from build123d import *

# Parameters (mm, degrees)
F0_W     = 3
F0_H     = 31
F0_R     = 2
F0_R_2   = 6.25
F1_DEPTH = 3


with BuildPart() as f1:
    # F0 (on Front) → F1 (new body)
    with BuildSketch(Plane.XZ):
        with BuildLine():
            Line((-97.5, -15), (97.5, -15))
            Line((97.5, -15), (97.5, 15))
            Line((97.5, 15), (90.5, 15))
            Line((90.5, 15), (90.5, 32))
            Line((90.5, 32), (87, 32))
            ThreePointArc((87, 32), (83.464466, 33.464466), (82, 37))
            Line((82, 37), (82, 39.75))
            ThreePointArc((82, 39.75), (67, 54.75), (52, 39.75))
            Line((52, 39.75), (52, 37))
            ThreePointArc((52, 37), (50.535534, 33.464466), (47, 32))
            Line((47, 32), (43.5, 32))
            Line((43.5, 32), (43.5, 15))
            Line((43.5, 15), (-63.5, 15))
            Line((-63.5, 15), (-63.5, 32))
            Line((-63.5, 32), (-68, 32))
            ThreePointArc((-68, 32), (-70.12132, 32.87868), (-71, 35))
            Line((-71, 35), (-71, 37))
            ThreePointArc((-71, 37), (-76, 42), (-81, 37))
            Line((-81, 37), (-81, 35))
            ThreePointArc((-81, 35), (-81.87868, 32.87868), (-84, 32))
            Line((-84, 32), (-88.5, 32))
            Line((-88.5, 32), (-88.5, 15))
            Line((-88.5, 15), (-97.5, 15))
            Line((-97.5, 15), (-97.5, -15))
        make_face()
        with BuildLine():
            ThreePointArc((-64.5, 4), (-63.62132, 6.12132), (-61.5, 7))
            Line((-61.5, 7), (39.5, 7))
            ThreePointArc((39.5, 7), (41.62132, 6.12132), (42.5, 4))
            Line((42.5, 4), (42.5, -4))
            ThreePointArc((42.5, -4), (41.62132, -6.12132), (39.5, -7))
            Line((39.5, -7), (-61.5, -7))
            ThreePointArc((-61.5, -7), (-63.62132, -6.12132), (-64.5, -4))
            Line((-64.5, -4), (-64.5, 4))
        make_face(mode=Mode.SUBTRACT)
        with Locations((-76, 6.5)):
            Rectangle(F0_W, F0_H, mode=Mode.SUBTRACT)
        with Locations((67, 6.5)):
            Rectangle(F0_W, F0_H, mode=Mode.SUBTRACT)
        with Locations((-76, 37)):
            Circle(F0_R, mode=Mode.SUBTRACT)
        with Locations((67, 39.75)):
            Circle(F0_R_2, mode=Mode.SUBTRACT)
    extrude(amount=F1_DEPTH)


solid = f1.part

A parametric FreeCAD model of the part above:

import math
import FreeCAD as App
import Part
import Sketcher
Q = App.Units.Quantity

doc = App.newDocument("Part")
body = doc.addObject("PartDesign::Body", "Body")

sketch1 = body.newObject("Sketcher::SketchObject", "Sketch")
sketch1.AttachmentSupport = (doc.getObject("XZ_Plane"), [""])
sketch1.MapMode = "FlatFace"
sketch1.addGeometry(Part.LineSegment(App.Vector(-97.5, -15, 0), App.Vector(97.5, -15, 0)), False)
sketch1.addGeometry(Part.LineSegment(App.Vector(97.5, -15, 0), App.Vector(97.5, 15, 0)), False)
sketch1.addGeometry(Part.LineSegment(App.Vector(97.5, 15, 0), App.Vector(90.5, 15, 0)), False)
sketch1.addGeometry(Part.LineSegment(App.Vector(90.5, 15, 0), App.Vector(90.5, 32, 0)), False)
sketch1.addGeometry(Part.LineSegment(App.Vector(90.5, 32, 0), App.Vector(87, 32, 0)), False)
sketch1.addGeometry(Part.ArcOfCircle(Part.Circle(App.Vector(87, 37, 0), App.Vector(0, 0, 1), 5), math.radians(180), math.radians(270)), False)
sketch1.addGeometry(Part.LineSegment(App.Vector(82, 37, 0), App.Vector(82, 39.8, 0)), False)
sketch1.addGeometry(Part.ArcOfCircle(Part.Circle(App.Vector(67, 39.8, 0), App.Vector(0, 0, 1), 15), math.radians(0), math.radians(180)), False)
sketch1.addGeometry(Part.LineSegment(App.Vector(52, 39.8, 0), App.Vector(52, 37, 0)), False)
sketch1.addGeometry(Part.ArcOfCircle(Part.Circle(App.Vector(47, 37, 0), App.Vector(0, 0, 1), 5), math.radians(-90), math.radians(0)), False)
sketch1.addGeometry(Part.LineSegment(App.Vector(47, 32, 0), App.Vector(43.5, 32, 0)), False)
sketch1.addGeometry(Part.LineSegment(App.Vector(43.5, 32, 0), App.Vector(43.5, 15, 0)), False)
sketch1.addGeometry(Part.LineSegment(App.Vector(43.5, 15, 0), App.Vector(-63.5, 15, 0)), False)
sketch1.addGeometry(Part.LineSegment(App.Vector(-63.5, 15, 0), App.Vector(-63.5, 32, 0)), False)
sketch1.addGeometry(Part.LineSegment(App.Vector(-63.5, 32, 0), App.Vector(-68, 32, 0)), False)
sketch1.addGeometry(Part.ArcOfCircle(Part.Circle(App.Vector(-68, 35, 0), App.Vector(0, 0, 1), 3), math.radians(-180), math.radians(-90)), False)
sketch1.addGeometry(Part.LineSegment(App.Vector(-71, 35, 0), App.Vector(-71, 37, 0)), False)
sketch1.addGeometry(Part.ArcOfCircle(Part.Circle(App.Vector(-76, 37, 0), App.Vector(0, 0, 1), 5), math.radians(0), math.radians(180)), False)
sketch1.addGeometry(Part.LineSegment(App.Vector(-81, 37, 0), App.Vector(-81, 35, 0)), False)
sketch1.addGeometry(Part.ArcOfCircle(Part.Circle(App.Vector(-84, 35, 0), App.Vector(0, 0, 1), 3), math.radians(-90), math.radians(0)), False)
sketch1.addGeometry(Part.LineSegment(App.Vector(-84, 32, 0), App.Vector(-88.5, 32, 0)), False)
sketch1.addGeometry(Part.LineSegment(App.Vector(-88.5, 32, 0), App.Vector(-88.5, 15, 0)), False)
sketch1.addGeometry(Part.LineSegment(App.Vector(-88.5, 15, 0), App.Vector(-97.5, 15, 0)), False)
sketch1.addGeometry(Part.LineSegment(App.Vector(-97.5, 15, 0), App.Vector(-97.5, -15, 0)), False)
sketch1.addGeometry(Part.LineSegment(App.Vector(-64.5, -4, 0), App.Vector(-64.5, 4, 0)), False)
sketch1.addGeometry(Part.ArcOfCircle(Part.Circle(App.Vector(-61.5, 4, 0), App.Vector(0, 0, 1), 3), math.radians(90), math.radians(180)), False)
sketch1.addGeometry(Part.LineSegment(App.Vector(-61.5, 7, 0), App.Vector(39.5, 7, 0)), False)
sketch1.addGeometry(Part.ArcOfCircle(Part.Circle(App.Vector(39.5, 4, 0), App.Vector(0, 0, 1), 3), math.radians(0), math.radians(90)), False)
sketch1.addGeometry(Part.LineSegment(App.Vector(42.5, 4, 0), App.Vector(42.5, -4, 0)), False)
sketch1.addGeometry(Part.ArcOfCircle(Part.Circle(App.Vector(39.5, -4, 0), App.Vector(0, 0, 1), 3), math.radians(-90), math.radians(0)), False)
sketch1.addGeometry(Part.LineSegment(App.Vector(39.5, -7, 0), App.Vector(-61.5, -7, 0)), False)
sketch1.addGeometry(Part.ArcOfCircle(Part.Circle(App.Vector(-61.5, -4, 0), App.Vector(0, 0, 1), 3), math.radians(-180), math.radians(-90)), False)
sketch1.addGeometry(Part.LineSegment(App.Vector(-74.5, -9, 0), App.Vector(-77.5, -9, 0)), False)
sketch1.addGeometry(Part.LineSegment(App.Vector(-77.5, -9, 0), App.Vector(-77.5, 22, 0)), False)
sketch1.addGeometry(Part.LineSegment(App.Vector(-77.5, 22, 0), App.Vector(-74.5, 22, 0)), False)
sketch1.addGeometry(Part.LineSegment(App.Vector(-74.5, 22, 0), App.Vector(-74.5, -9, 0)), False)
sketch1.addGeometry(Part.LineSegment(App.Vector(68.5, -9, 0), App.Vector(65.5, -9, 0)), False)
sketch1.addGeometry(Part.LineSegment(App.Vector(65.5, -9, 0), App.Vector(65.5, 22, 0)), False)
sketch1.addGeometry(Part.LineSegment(App.Vector(65.5, 22, 0), App.Vector(68.5, 22, 0)), False)
sketch1.addGeometry(Part.LineSegment(App.Vector(68.5, 22, 0), App.Vector(68.5, -9, 0)), False)
sketch1.addGeometry(Part.Circle(App.Vector(-76, 37, 0), App.Vector(0, 0, 1), 2), False)
sketch1.addGeometry(Part.Circle(App.Vector(67, 39.8, 0), App.Vector(0, 0, 1), 6.2), False)
sketch1.addConstraint(Sketcher.Constraint("Coincident", 0, 2, 1, 1))
sketch1.addConstraint(Sketcher.Constraint("Coincident", 1, 2, 2, 1))
sketch1.addConstraint(Sketcher.Constraint("Coincident", 2, 2, 3, 1))
sketch1.addConstraint(Sketcher.Constraint("Coincident", 3, 2, 4, 1))
sketch1.addConstraint(Sketcher.Constraint("Tangent", 4, 2, 5, 2))
sketch1.addConstraint(Sketcher.Constraint("Tangent", 5, 1, 6, 1))
sketch1.addConstraint(Sketcher.Constraint("Tangent", 6, 2, 7, 1))
sketch1.addConstraint(Sketcher.Constraint("Tangent", 7, 2, 8, 1))
sketch1.addConstraint(Sketcher.Constraint("Tangent", 8, 2, 9, 2))
sketch1.addConstraint(Sketcher.Constraint("Tangent", 9, 1, 10, 1))
sketch1.addConstraint(Sketcher.Constraint("Coincident", 10, 2, 11, 1))
sketch1.addConstraint(Sketcher.Constraint("Coincident", 11, 2, 12, 1))
sketch1.addConstraint(Sketcher.Constraint("Coincident", 12, 2, 13, 1))
sketch1.addConstraint(Sketcher.Constraint("Coincident", 13, 2, 14, 1))
sketch1.addConstraint(Sketcher.Constraint("Tangent", 14, 2, 15, 2))
sketch1.addConstraint(Sketcher.Constraint("Tangent", 15, 1, 16, 1))
sketch1.addConstraint(Sketcher.Constraint("Tangent", 16, 2, 17, 1))
sketch1.addConstraint(Sketcher.Constraint("Tangent", 17, 2, 18, 1))
sketch1.addConstraint(Sketcher.Constraint("Tangent", 18, 2, 19, 2))
sketch1.addConstraint(Sketcher.Constraint("Tangent", 19, 1, 20, 1))
sketch1.addConstraint(Sketcher.Constraint("Coincident", 20, 2, 21, 1))
sketch1.addConstraint(Sketcher.Constraint("Coincident", 21, 2, 22, 1))
sketch1.addConstraint(Sketcher.Constraint("Coincident", 22, 2, 23, 1))
sketch1.addConstraint(Sketcher.Constraint("Coincident", 23, 2, 0, 1))
sketch1.addConstraint(Sketcher.Constraint("Tangent", 24, 2, 25, 2))
sketch1.addConstraint(Sketcher.Constraint("Tangent", 25, 1, 26, 1))
sketch1.addConstraint(Sketcher.Constraint("Tangent", 26, 2, 27, 2))
sketch1.addConstraint(Sketcher.Constraint("Tangent", 27, 1, 28, 1))
sketch1.addConstraint(Sketcher.Constraint("Tangent", 28, 2, 29, 2))
sketch1.addConstraint(Sketcher.Constraint("Tangent", 29, 1, 30, 1))
sketch1.addConstraint(Sketcher.Constraint("Tangent", 30, 2, 31, 2))
sketch1.addConstraint(Sketcher.Constraint("Tangent", 31, 1, 24, 1))
sketch1.addConstraint(Sketcher.Constraint("Coincident", 32, 2, 33, 1))
sketch1.addConstraint(Sketcher.Constraint("Coincident", 33, 2, 34, 1))
sketch1.addConstraint(Sketcher.Constraint("Coincident", 34, 2, 35, 1))
sketch1.addConstraint(Sketcher.Constraint("Coincident", 35, 2, 32, 1))
sketch1.addConstraint(Sketcher.Constraint("Coincident", 36, 2, 37, 1))
sketch1.addConstraint(Sketcher.Constraint("Coincident", 37, 2, 38, 1))
sketch1.addConstraint(Sketcher.Constraint("Coincident", 38, 2, 39, 1))
sketch1.addConstraint(Sketcher.Constraint("Coincident", 39, 2, 36, 1))
sketch1.addConstraint(Sketcher.Constraint("Horizontal", 0))
sketch1.addConstraint(Sketcher.Constraint("Vertical", 1))
sketch1.addConstraint(Sketcher.Constraint("Horizontal", 2))
sketch1.addConstraint(Sketcher.Constraint("Vertical", 3))
sketch1.addConstraint(Sketcher.Constraint("Horizontal", 4))
sketch1.addConstraint(Sketcher.Constraint("Vertical", 6))
sketch1.addConstraint(Sketcher.Constraint("Vertical", 8))
sketch1.addConstraint(Sketcher.Constraint("Horizontal", 10))
sketch1.addConstraint(Sketcher.Constraint("Vertical", 11))
sketch1.addConstraint(Sketcher.Constraint("Horizontal", 12))
sketch1.addConstraint(Sketcher.Constraint("Vertical", 13))
sketch1.addConstraint(Sketcher.Constraint("Horizontal", 14))
sketch1.addConstraint(Sketcher.Constraint("Vertical", 16))
sketch1.addConstraint(Sketcher.Constraint("Vertical", 18))
sketch1.addConstraint(Sketcher.Constraint("Horizontal", 20))
sketch1.addConstraint(Sketcher.Constraint("Vertical", 21))
sketch1.addConstraint(Sketcher.Constraint("Horizontal", 22))
sketch1.addConstraint(Sketcher.Constraint("Vertical", 23))
sketch1.addConstraint(Sketcher.Constraint("Vertical", 24))
sketch1.addConstraint(Sketcher.Constraint("Horizontal", 26))
sketch1.addConstraint(Sketcher.Constraint("Vertical", 28))
sketch1.addConstraint(Sketcher.Constraint("Horizontal", 30))
sketch1.addConstraint(Sketcher.Constraint("Horizontal", 32))
sketch1.addConstraint(Sketcher.Constraint("Vertical", 33))
sketch1.addConstraint(Sketcher.Constraint("Horizontal", 34))
sketch1.addConstraint(Sketcher.Constraint("Vertical", 35))
sketch1.addConstraint(Sketcher.Constraint("Horizontal", 36))
sketch1.addConstraint(Sketcher.Constraint("Vertical", 37))
sketch1.addConstraint(Sketcher.Constraint("Horizontal", 38))
sketch1.addConstraint(Sketcher.Constraint("Vertical", 39))
sketch1.addConstraint(Sketcher.Constraint("Coincident", 40, 3, 17, 3))
sketch1.addConstraint(Sketcher.Constraint("Coincident", 41, 3, 7, 3))
sketch1.addConstraint(Sketcher.Constraint("Equal", 5, 9))
sketch1.addConstraint(Sketcher.Constraint("Equal", 9, 17))
sketch1.addConstraint(Sketcher.Constraint("Equal", 15, 19))
sketch1.addConstraint(Sketcher.Constraint("Equal", 19, 25))
sketch1.addConstraint(Sketcher.Constraint("Equal", 25, 27))
sketch1.addConstraint(Sketcher.Constraint("Equal", 27, 29))
sketch1.addConstraint(Sketcher.Constraint("Equal", 29, 31))
sketch1.addConstraint(Sketcher.Constraint("Symmetric", 0, 2, 22, 2, -1, 1))
sketch1.addConstraint(Sketcher.Constraint("Horizontal", 5, 3, 9, 3))
sketch1.addConstraint(Sketcher.Constraint("Horizontal", 9, 3, 17, 3))
sketch1.addConstraint(Sketcher.Constraint("Horizontal", 15, 3, 19, 3))
sketch1.addConstraint(Sketcher.Constraint("Horizontal", 2, 2, 11, 2))
sketch1.addConstraint(Sketcher.Constraint("Horizontal", 10, 2, 13, 2))
sketch1.addConstraint(Sketcher.Constraint("Horizontal", 12, 2, 21, 2))
sketch1.addConstraint(Sketcher.Constraint("Horizontal", 35, 2, 36, 2))
sketch1.addConstraint(Sketcher.Constraint("Horizontal", 34, 2, 37, 2))
sketch1.addConstraint(Sketcher.Constraint("Equal", 4, 10))
sketch1.addConstraint(Sketcher.Constraint("Equal", 14, 20))
sketch1.addConstraint(Sketcher.Constraint("Equal", 34, 36))
sketch1.addConstraint(Sketcher.Constraint("Diameter", 40, Q("4 mm")))
sketch1.addConstraint(Sketcher.Constraint("Radius", 5, Q("5 mm")))
sketch1.addConstraint(Sketcher.Constraint("Radius", 7, Q("15 mm")))
sketch1.addConstraint(Sketcher.Constraint("Radius", 15, Q("3.000001 mm")))
sketch1.addConstraint(Sketcher.Constraint("Diameter", 41, Q("12.5 mm")))
sketch1.addConstraint(Sketcher.Constraint("DistanceX", 0, 1, 0, 2, Q("195 mm")))
sketch1.addConstraint(Sketcher.Constraint("DistanceX", 2, 2, 2, 1, Q("7 mm")))
sketch1.addConstraint(Sketcher.Constraint("DistanceX", 12, 2, 12, 1, Q("107 mm")))
sketch1.addConstraint(Sketcher.Constraint("DistanceX", 22, 2, 22, 1, Q("9 mm")))
sketch1.addConstraint(Sketcher.Constraint("DistanceX", 26, 1, 26, 2, Q("101 mm")))
sketch1.addConstraint(Sketcher.Constraint("DistanceX", 32, 2, 32, 1, Q("3 mm")))
sketch1.addConstraint(Sketcher.Constraint("DistanceY", 1, 1, 1, 2, Q("30 mm")))
sketch1.addConstraint(Sketcher.Constraint("DistanceY", 3, 1, 3, 2, Q("17 mm")))
sketch1.addConstraint(Sketcher.Constraint("DistanceY", 24, 1, 24, 2, Q("8 mm")))
sketch1.addConstraint(Sketcher.Constraint("DistanceY", 33, 1, 33, 2, Q("31 mm")))
sketch1.addConstraint(Sketcher.Constraint("DistanceX", 4, 2, 4, 1, Q("3.5 mm")))
sketch1.addConstraint(Sketcher.Constraint("DistanceY", -1, 1, 25, 3, Q("3.999999 mm")))
sketch1.addConstraint(Sketcher.Constraint("DistanceY", 32, 2, -1, 1, Q("9 mm")))
sketch1.addConstraint(Sketcher.Constraint("DistanceX", 29, 3, 0, 2, Q("58.000001 mm")))
sketch1.addConstraint(Sketcher.Constraint("DistanceX", 32, 2, 31, 1, Q("13 mm")))
sketch1.addConstraint(Sketcher.Constraint("DistanceX", 28, 2, 36, 2, Q("23 mm")))
sketch1.addConstraint(Sketcher.Constraint("DistanceY", 6, 1, 6, 2, Q("2.75 mm")))
pad1 = body.newObject("PartDesign::Pad", "Pad")
pad1.Profile = sketch1
pad1.Length = 3

doc.recompute()
